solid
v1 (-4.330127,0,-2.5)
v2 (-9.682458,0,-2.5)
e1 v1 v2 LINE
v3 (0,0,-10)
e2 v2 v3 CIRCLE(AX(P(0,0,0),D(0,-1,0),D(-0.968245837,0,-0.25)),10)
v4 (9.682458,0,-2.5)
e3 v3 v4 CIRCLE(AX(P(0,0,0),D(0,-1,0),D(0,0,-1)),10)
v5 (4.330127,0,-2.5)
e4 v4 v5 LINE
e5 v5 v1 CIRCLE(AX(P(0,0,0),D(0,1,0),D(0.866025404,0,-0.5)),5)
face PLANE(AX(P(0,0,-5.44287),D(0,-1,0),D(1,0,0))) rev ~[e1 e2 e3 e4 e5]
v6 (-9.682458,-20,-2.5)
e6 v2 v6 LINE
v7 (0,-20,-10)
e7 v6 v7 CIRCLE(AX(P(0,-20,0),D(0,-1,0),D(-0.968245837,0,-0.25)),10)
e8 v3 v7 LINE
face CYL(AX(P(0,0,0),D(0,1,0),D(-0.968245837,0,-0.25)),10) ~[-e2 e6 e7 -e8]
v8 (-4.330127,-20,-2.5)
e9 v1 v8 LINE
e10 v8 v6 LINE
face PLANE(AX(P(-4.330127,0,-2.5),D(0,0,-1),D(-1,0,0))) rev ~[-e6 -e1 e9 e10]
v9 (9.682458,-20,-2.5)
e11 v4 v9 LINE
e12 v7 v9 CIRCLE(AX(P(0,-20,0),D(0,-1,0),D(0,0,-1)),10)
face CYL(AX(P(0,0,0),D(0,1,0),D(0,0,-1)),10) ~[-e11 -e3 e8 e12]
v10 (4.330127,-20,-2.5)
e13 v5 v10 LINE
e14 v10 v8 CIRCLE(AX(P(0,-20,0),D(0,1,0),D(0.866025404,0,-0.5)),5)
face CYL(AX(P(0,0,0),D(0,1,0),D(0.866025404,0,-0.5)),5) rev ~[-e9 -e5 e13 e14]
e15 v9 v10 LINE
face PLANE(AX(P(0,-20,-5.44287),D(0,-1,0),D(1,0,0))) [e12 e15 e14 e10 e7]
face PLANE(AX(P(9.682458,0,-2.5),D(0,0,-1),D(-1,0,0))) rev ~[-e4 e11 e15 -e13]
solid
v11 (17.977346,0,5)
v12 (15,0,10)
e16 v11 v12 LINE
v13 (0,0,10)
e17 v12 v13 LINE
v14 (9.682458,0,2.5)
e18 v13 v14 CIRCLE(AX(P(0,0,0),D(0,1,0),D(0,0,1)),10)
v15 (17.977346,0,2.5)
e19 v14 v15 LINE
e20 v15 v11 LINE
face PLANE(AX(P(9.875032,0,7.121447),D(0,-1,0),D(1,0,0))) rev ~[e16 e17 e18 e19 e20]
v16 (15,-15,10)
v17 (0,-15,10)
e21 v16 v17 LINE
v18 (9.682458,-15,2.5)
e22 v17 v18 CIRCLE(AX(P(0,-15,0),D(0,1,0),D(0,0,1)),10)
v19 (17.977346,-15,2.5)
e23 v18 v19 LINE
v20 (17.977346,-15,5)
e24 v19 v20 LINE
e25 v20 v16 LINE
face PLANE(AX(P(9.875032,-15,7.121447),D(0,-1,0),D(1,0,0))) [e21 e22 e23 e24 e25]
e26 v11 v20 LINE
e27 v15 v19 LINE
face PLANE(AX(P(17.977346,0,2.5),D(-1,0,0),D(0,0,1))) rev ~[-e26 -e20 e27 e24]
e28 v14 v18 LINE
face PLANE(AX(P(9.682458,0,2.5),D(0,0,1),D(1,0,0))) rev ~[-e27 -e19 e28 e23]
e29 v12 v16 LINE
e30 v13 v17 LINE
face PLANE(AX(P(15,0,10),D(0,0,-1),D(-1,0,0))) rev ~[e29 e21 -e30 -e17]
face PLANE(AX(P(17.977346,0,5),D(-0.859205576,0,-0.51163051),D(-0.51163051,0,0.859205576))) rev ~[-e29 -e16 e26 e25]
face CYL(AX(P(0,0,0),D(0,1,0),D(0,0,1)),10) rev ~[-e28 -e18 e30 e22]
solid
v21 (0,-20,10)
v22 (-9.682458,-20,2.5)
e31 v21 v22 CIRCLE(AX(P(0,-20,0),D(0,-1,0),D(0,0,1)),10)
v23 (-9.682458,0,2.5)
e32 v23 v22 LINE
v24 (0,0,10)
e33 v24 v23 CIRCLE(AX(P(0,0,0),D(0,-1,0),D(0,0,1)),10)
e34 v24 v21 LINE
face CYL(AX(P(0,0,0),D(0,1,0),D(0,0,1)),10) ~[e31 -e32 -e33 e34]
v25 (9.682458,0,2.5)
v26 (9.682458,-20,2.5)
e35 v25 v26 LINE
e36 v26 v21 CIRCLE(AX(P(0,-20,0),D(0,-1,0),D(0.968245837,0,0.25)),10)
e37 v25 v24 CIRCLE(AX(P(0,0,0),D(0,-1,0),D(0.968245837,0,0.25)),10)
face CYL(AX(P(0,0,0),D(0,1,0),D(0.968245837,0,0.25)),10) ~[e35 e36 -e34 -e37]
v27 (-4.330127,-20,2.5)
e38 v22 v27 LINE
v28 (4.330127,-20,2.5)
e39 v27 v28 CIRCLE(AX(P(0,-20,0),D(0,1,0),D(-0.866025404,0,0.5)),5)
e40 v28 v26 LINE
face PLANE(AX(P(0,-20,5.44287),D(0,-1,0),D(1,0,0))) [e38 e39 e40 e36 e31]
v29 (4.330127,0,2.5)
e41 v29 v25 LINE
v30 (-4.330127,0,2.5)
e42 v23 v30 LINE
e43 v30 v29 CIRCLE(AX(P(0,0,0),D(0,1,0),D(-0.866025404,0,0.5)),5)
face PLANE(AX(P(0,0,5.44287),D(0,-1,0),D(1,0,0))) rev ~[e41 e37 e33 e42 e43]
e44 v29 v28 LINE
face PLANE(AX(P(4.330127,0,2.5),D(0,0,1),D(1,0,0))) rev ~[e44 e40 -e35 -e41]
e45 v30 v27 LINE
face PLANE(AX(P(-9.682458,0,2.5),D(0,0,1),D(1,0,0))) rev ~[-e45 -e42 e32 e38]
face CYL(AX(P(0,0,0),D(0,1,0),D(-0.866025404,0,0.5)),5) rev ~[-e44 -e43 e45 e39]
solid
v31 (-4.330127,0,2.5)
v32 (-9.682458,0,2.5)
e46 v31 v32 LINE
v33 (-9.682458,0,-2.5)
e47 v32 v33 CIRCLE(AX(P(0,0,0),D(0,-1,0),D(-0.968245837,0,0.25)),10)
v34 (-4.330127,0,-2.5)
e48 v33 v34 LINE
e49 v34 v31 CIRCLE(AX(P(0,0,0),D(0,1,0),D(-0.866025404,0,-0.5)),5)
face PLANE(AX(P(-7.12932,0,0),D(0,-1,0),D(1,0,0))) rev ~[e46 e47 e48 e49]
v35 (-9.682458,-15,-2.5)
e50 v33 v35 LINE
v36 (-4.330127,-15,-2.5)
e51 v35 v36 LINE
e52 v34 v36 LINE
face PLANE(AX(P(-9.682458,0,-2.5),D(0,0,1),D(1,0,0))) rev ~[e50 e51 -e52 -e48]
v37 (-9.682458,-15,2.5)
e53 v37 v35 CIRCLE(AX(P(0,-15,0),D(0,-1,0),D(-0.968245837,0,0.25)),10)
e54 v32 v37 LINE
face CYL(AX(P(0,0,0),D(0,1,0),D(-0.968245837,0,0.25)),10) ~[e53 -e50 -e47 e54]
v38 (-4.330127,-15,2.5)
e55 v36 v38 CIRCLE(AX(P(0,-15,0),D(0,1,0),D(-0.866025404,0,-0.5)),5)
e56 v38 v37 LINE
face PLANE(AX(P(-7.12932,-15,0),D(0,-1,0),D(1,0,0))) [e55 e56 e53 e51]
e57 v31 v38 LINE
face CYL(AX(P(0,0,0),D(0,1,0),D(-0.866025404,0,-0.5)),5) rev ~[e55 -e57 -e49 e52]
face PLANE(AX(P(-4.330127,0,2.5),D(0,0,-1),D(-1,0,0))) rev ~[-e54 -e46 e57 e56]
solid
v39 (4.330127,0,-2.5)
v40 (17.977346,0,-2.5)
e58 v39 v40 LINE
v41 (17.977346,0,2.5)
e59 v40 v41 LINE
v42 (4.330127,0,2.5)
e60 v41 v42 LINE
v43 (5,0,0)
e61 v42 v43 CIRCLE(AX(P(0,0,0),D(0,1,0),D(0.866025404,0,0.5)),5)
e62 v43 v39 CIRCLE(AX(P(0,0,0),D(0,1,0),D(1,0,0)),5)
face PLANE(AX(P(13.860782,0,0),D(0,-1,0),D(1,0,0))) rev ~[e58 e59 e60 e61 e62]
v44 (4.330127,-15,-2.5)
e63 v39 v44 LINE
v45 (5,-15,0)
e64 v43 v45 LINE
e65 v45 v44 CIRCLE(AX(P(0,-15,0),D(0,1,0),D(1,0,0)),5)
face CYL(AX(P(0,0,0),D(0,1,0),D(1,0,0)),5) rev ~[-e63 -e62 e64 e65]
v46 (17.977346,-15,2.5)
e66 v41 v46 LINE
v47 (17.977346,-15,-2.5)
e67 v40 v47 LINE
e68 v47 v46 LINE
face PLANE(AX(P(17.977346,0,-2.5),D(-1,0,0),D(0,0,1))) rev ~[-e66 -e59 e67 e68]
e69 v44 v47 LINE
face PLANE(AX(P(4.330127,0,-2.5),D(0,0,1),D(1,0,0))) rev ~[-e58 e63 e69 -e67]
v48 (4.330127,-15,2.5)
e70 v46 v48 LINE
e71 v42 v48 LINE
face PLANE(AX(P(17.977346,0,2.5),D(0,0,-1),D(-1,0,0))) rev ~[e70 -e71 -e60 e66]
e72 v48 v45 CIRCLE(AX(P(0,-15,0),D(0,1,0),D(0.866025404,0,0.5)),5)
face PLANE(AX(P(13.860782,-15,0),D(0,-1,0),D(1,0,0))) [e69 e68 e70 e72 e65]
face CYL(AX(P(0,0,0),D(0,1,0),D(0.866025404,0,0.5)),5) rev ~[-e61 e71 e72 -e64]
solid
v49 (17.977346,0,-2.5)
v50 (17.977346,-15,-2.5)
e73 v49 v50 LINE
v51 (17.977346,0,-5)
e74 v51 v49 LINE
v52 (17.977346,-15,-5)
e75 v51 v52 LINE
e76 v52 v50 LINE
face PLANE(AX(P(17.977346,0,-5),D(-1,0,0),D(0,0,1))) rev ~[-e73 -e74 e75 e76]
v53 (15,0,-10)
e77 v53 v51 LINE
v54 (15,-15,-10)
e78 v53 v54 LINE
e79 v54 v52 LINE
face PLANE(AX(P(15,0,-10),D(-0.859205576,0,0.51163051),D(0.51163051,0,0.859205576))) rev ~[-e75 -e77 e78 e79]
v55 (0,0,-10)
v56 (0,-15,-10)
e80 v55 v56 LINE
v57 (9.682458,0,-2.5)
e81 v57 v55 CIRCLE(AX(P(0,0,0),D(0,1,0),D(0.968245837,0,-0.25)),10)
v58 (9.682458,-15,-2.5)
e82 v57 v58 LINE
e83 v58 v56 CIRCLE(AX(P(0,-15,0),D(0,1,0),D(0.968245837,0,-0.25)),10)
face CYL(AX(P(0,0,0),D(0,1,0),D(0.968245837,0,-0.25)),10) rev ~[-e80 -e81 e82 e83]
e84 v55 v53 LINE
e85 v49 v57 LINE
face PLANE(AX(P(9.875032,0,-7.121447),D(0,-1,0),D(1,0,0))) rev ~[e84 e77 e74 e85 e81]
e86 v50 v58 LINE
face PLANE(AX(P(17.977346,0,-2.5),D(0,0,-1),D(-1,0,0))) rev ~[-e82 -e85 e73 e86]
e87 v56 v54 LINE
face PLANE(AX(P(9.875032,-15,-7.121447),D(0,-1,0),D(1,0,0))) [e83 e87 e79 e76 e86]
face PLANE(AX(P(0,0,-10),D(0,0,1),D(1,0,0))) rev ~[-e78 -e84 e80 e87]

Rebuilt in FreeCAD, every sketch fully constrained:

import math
import FreeCAD as App
import Part
import Sketcher
Q = App.Units.Quantity

doc = App.newDocument("Part")
params = doc.addObject("Spreadsheet::Sheet", "Params")
for row, (alias, value) in enumerate([
    ("sketch1_radius", "10 mm"),
    ("sketch1_radius2", "5 mm"),
    ("pad1_length", "20 mm"),
    ("sketch2_radius", "10 mm"),
    ("sketch2_radius2", "5 mm"),
    ("pad2_length", "20 mm"),
    ("sketch3_radius", "10 mm"),
    ("sketch3_width", "15 mm"),
    ("sketch3_height", "2.5 mm"),
    ("pad3_length", "15 mm"),
    ("sketch4_radius", "10 mm"),
    ("sketch4_width", "15 mm"),
    ("sketch4_height", "2.5 mm"),
    ("pad4_length", "15 mm"),
    ("sketch5_radius", "5 mm"),
    ("sketch5_height", "5 mm"),
    ("pad5_length", "15 mm"),
    ("sketch6_radius", "10 mm"),
    ("sketch6_radius2", "5 mm"),
    ("pad6_length", "15 mm"),
], start=1):
    params.set(f"A{row}", alias)
    params.set(f"B{row}", "=" + value)
    params.setAlias(f"B{row}", alias)

body = doc.addObject("PartDesign::Body", "Body")

# Sketch on XZ plane
sketch1 = doc.addObject("Sketcher::SketchObject", "Sketch")
body.addObject(sketch1)
sketch1.AttachmentSupport = (doc.XZ_Plane, [""])
sketch1.MapMode = "FlatFace"
sketch1.addGeometry(Part.ArcOfCircle(Part.Circle(App.Vector(0, 0, 0), App.Vector(0, 0, 1), 10), math.radians(14), math.radians(90)), False)
sketch1.addGeometry(Part.ArcOfCircle(Part.Circle(App.Vector(0, 0, 0), App.Vector(0, 0, 1), 10), math.radians(90), math.radians(166)), False)
sketch1.addGeometry(Part.LineSegment(App.Vector(-10, 2, 0), App.Vector(-4, 2, 0)), False)
sketch1.addGeometry(Part.ArcOfCircle(Part.Circle(App.Vector(0, 0, 0), App.Vector(0, 0, 1), 5), math.radians(30), math.radians(150)), False)
sketch1.addGeometry(Part.LineSegment(App.Vector(4, 2, 0), App.Vector(10, 2, 0)), False)
sketch1.addConstraint(Sketcher.Constraint("Tangent", 0, 2, 1, 1))
sketch1.addConstraint(Sketcher.Constraint("Coincident", 1, 2, 2, 1))
sketch1.addConstraint(Sketcher.Constraint("Coincident", 2, 2, 3, 2))
sketch1.addConstraint(Sketcher.Constraint("Coincident", 3, 1, 4, 1))
sketch1.addConstraint(Sketcher.Constraint("Coincident", 4, 2, 0, 1))
sketch1.addConstraint(Sketcher.Constraint("Horizontal", 2))
sketch1.addConstraint(Sketcher.Constraint("Horizontal", 4))
sketch1.addConstraint(Sketcher.Constraint("Coincident", 0, 3, -1, 1))
sketch1.addConstraint(Sketcher.Constraint("Coincident", 3, 3, -1, 1))
sketch1.addConstraint(Sketcher.Constraint("Equal", 0, 1))
sketch1.addConstraint(Sketcher.Constraint("PointOnObject", 0, 2, -2))
sketch1.addConstraint(Sketcher.Constraint("Horizontal", 2, 2, 3, 1))
sketch1.addConstraint(Sketcher.Constraint("Radius", 0, Q("10 mm")))
sketch1.addConstraint(Sketcher.Constraint("Radius", 3, Q("5 mm")))
sketch1.addConstraint(Sketcher.Constraint("DistanceY", -1, 1, 1, 2, Q("2.5 mm")))
sketch1.setExpression("Constraints[12]", "Params.sketch1_radius")
sketch1.setExpression("Constraints[13]", "Params.sketch1_radius2")
pad1 = doc.addObject("PartDesign::Pad", "Pad")
body.addObject(pad1)
pad1.Profile = sketch1
pad1.setExpression("Length", "Params.pad1_length")
body2 = doc.addObject("PartDesign::Body", "Body001")

# Sketch on XZ plane
sketch2 = doc.addObject("Sketcher::SketchObject", "Sketch001")
body2.addObject(sketch2)
sketch2.AttachmentSupport = (doc.getObject("XZ_Plane001"), [""])
sketch2.MapMode = "FlatFace"
sketch2.addGeometry(Part.LineSegment(App.Vector(-4, -2, 0), App.Vector(-10, -2, 0)), False)
sketch2.addGeometry(Part.ArcOfCircle(Part.Circle(App.Vector(0, 0, 0), App.Vector(0, 0, 1), 10), math.radians(-166), math.radians(-90)), False)
sketch2.addGeometry(Part.ArcOfCircle(Part.Circle(App.Vector(0, 0, 0), App.Vector(0, 0, 1), 10), math.radians(-90), math.radians(-14)), False)
sketch2.addGeometry(Part.LineSegment(App.Vector(10, -2, 0), App.Vector(4, -2, 0)), False)
sketch2.addGeometry(Part.ArcOfCircle(Part.Circle(App.Vector(0, 0, 0), App.Vector(0, 0, 1), 5), math.radians(-150), math.radians(-30)), False)
sketch2.addConstraint(Sketcher.Constraint("Coincident", 0, 2, 1, 1))
sketch2.addConstraint(Sketcher.Constraint("Tangent", 1, 2, 2, 1))
sketch2.addConstraint(Sketcher.Constraint("Coincident", 2, 2, 3, 1))
sketch2.addConstraint(Sketcher.Constraint("Coincident", 3, 2, 4, 2))
sketch2.addConstraint(Sketcher.Constraint("Coincident", 4, 1, 0, 1))
sketch2.addConstraint(Sketcher.Constraint("Horizontal", 0))
sketch2.addConstraint(Sketcher.Constraint("Horizontal", 3))
sketch2.addConstraint(Sketcher.Constraint("Coincident", 1, 3, -1, 1))
sketch2.addConstraint(Sketcher.Constraint("Coincident", 4, 3, -1, 1))
sketch2.addConstraint(Sketcher.Constraint("Equal", 1, 2))
sketch2.addConstraint(Sketcher.Constraint("PointOnObject", 1, 2, -2))
sketch2.addConstraint(Sketcher.Constraint("Horizontal", 0, 2, 2, 2))
sketch2.addConstraint(Sketcher.Constraint("Radius", 1, Q("10 mm")))
sketch2.addConstraint(Sketcher.Constraint("Radius", 4, Q("5 mm")))
sketch2.addConstraint(Sketcher.Constraint("DistanceY", 0, 2, -1, 1, Q("2.5 mm")))
sketch2.setExpression("Constraints[12]", "Params.sketch2_radius")
sketch2.setExpression("Constraints[13]", "Params.sketch2_radius2")
pad2 = doc.addObject("PartDesign::Pad", "Pad001")
body2.addObject(pad2)
pad2.Profile = sketch2
pad2.setExpression("Length", "Params.pad2_length")
body3 = doc.addObject("PartDesign::Body", "Body002")

# Sketch on XZ plane
sketch3 = doc.addObject("Sketcher::SketchObject", "Sketch002")
body3.addObject(sketch3)
sketch3.AttachmentSupport = (doc.getObject("XZ_Plane002"), [""])
sketch3.MapMode = "FlatFace"
sketch3.addGeometry(Part.LineSegment(App.Vector(15, 10, 0), App.Vector(0, 10, 0)), False)
sketch3.addGeometry(Part.ArcOfCircle(Part.Circle(App.Vector(0, 0, 0), App.Vector(0, 0, 1), 10), math.radians(14), math.radians(90)), False)
sketch3.addGeometry(Part.LineSegment(App.Vector(9.7, 2.5, 0), App.Vector(18, 2.5, 0)), False)
sketch3.addGeometry(Part.LineSegment(App.Vector(18, 2.5, 0), App.Vector(18, 5, 0)), False)
sketch3.addGeometry(Part.LineSegment(App.Vector(18, 5, 0), App.Vector(15, 10, 0)), False)
sketch3.addConstraint(Sketcher.Constraint("Tangent", 0, 2, 1, 2))
sketch3.addConstraint(Sketcher.Constraint("Coincident", 1, 1, 2, 1))
sketch3.addConstraint(Sketcher.Constraint("Coincident", 2, 2, 3, 1))
sketch3.addConstraint(Sketcher.Constraint("Coincident", 3, 2, 4, 1))
sketch3.addConstraint(Sketcher.Constraint("Coincident", 4, 2, 0, 1))
sketch3.addConstraint(Sketcher.Constraint("Horizontal", 0))
sketch3.addConstraint(Sketcher.Constraint("Horizontal", 2))
sketch3.addConstraint(Sketcher.Constraint("Vertical", 3))
sketch3.addConstraint(Sketcher.Constraint("Coincident", 1, 3, -1, 1))
sketch3.addConstraint(Sketcher.Constraint("Radius", 1, Q("10 mm")))
sketch3.addConstraint(Sketcher.Constraint("DistanceX", 0, 2, 0, 1, Q("15 mm")))
sketch3.addConstraint(Sketcher.Constraint("DistanceY", 3, 1, 3, 2, Q("2.5 mm")))
sketch3.addConstraint(Sketcher.Constraint("DistanceY", -1, 1, 3, 2, Q("5 mm")))
sketch3.addConstraint(Sketcher.Constraint("Distance", 4, Q("5.819329 mm")))
sketch3.setExpression("Constraints[9]", "Params.sketch3_radius")
sketch3.setExpression("Constraints[10]", "Params.sketch3_width")
sketch3.setExpression("Constraints[11]", "Params.sketch3_height")
pad3 = doc.addObject("PartDesign::Pad", "Pad002")
body3.addObject(pad3)
pad3.Profile = sketch3
pad3.setExpression("Length", "Params.pad3_length")
body4 = doc.addObject("PartDesign::Body", "Body003")

# Sketch on XZ plane
sketch4 = doc.addObject("Sketcher::SketchObject", "Sketch003")
body4.addObject(sketch4)
sketch4.AttachmentSupport = (doc.getObject("XZ_Plane003"), [""])
sketch4.MapMode = "FlatFace"
sketch4.addGeometry(Part.ArcOfCircle(Part.Circle(App.Vector(0, 0, 0), App.Vector(0, 0, 1), 10), math.radians(-90), math.radians(-14)), False)
sketch4.addGeometry(Part.LineSegment(App.Vector(0, -10, 0), App.Vector(15, -10, 0)), False)
sketch4.addGeometry(Part.LineSegment(App.Vector(15, -10, 0), App.Vector(18, -5, 0)), False)
sketch4.addGeometry(Part.LineSegment(App.Vector(18, -5, 0), App.Vector(18, -2.5, 0)), False)
sketch4.addGeometry(Part.LineSegment(App.Vector(18, -2.5, 0), App.Vector(9.7, -2.5, 0)), False)
sketch4.addConstraint(Sketcher.Constraint("Tangent", 0, 1, 1, 1))
sketch4.addConstraint(Sketcher.Constraint("Coincident", 1, 2, 2, 1))
sketch4.addConstraint(Sketcher.Constraint("Coincident", 2, 2, 3, 1))
sketch4.addConstraint(Sketcher.Constraint("Coincident", 3, 2, 4, 1))
sketch4.addConstraint(Sketcher.Constraint("Coincident", 4, 2, 0, 2))
sketch4.addConstraint(Sketcher.Constraint("Horizontal", 1))
sketch4.addConstraint(Sketcher.Constraint("Vertical", 3))
sketch4.addConstraint(Sketcher.Constraint("Horizontal", 4))
sketch4.addConstraint(Sketcher.Constraint("Coincident", 0, 3, -1, 1))
sketch4.addConstraint(Sketcher.Constraint("Radius", 0, Q("10 mm")))
sketch4.addConstraint(Sketcher.Constraint("DistanceX", 1, 1, 1, 2, Q("15 mm")))
sketch4.addConstraint(Sketcher.Constraint("DistanceY", 3, 1, 3, 2, Q("2.5 mm")))
sketch4.addConstraint(Sketcher.Constraint("DistanceY", 2, 2, -1, 1, Q("5 mm")))
sketch4.addConstraint(Sketcher.Constraint("Distance", 2, Q("5.819329 mm")))
sketch4.setExpression("Constraints[9]", "Params.sketch4_radius")
sketch4.setExpression("Constraints[10]", "Params.sketch4_width")
sketch4.setExpression("Constraints[11]", "Params.sketch4_height")
pad4 = doc.addObject("PartDesign::Pad", "Pad003")
body4.addObject(pad4)
pad4.Profile = sketch4
pad4.setExpression("Length", "Params.pad4_length")
body5 = doc.addObject("PartDesign::Body", "Body004")

# Sketch on XZ plane
sketch5 = doc.addObject("Sketcher::SketchObject", "Sketch004")
body5.addObject(sketch5)
sketch5.AttachmentSupport = (doc.getObject("XZ_Plane004"), [""])
sketch5.MapMode = "FlatFace"
sketch5.addGeometry(Part.LineSegment(App.Vector(18, 2.5, 0), App.Vector(4.3, 2.5, 0)), False)
sketch5.addGeometry(Part.ArcOfCircle(Part.Circle(App.Vector(0, 0, 0), App.Vector(0, 0, 1), 5), math.radians(0), math.radians(30)), False)
sketch5.addGeometry(Part.ArcOfCircle(Part.Circle(App.Vector(0, 0, 0), App.Vector(0, 0, 1), 5), math.radians(-30), math.radians(0)), False)
sketch5.addGeometry(Part.LineSegment(App.Vector(4.3, -2.5, 0), App.Vector(18, -2.5, 0)), False)
sketch5.addGeometry(Part.LineSegment(App.Vector(18, -2.5, 0), App.Vector(18, 2.5, 0)), False)
sketch5.addConstraint(Sketcher.Constraint("Coincident", 0, 2, 1, 2))
sketch5.addConstraint(Sketcher.Constraint("Tangent", 1, 1, 2, 2))
sketch5.addConstraint(Sketcher.Constraint("Coincident", 2, 1, 3, 1))
sketch5.addConstraint(Sketcher.Constraint("Coincident", 3, 2, 4, 1))
sketch5.addConstraint(Sketcher.Constraint("Coincident", 4, 2, 0, 1))
sketch5.addConstraint(Sketcher.Constraint("Horizontal", 0))
sketch5.addConstraint(Sketcher.Constraint("Horizontal", 3))
sketch5.addConstraint(Sketcher.Constraint("Vertical", 4))
sketch5.addConstraint(Sketcher.Constraint("Coincident", 1, 3, -1, 1))
sketch5.addConstraint(Sketcher.Constraint("Equal", 1, 2))
sketch5.addConstraint(Sketcher.Constraint("PointOnObject", 1, 1, -1))
sketch5.addConstraint(Sketcher.Constraint("Vertical", 0, 2, 2, 1))
sketch5.addConstraint(Sketcher.Constraint("Radius", 1, Q("5 mm")))
sketch5.addConstraint(Sketcher.Constraint("DistanceY", 4, 1, 4, 2, Q("5 mm")))
sketch5.addConstraint(Sketcher.Constraint("DistanceX", 0, 2, 0, 1, Q("13.647219 mm")))
sketch5.setExpression("Constraints[12]", "Params.sketch5_radius")
sketch5.setExpression("Constraints[13]", "Params.sketch5_height")
pad5 = doc.addObject("PartDesign::Pad", "Pad004")
body5.addObject(pad5)
pad5.Profile = sketch5
pad5.setExpression("Length", "Params.pad5_length")
body6 = doc.addObject("PartDesign::Body", "Body005")

# Sketch on XZ plane
sketch6 = doc.addObject("Sketcher::SketchObject", "Sketch005")
body6.addObject(sketch6)
sketch6.AttachmentSupport = (doc.getObject("XZ_Plane005"), [""])
sketch6.MapMode = "FlatFace"
sketch6.addGeometry(Part.LineSegment(App.Vector(-4, 2, 0), App.Vector(-10, 2, 0)), False)
sketch6.addGeometry(Part.ArcOfCircle(Part.Circle(App.Vector(0, 0, 0), App.Vector(0, 0, 1), 10), math.radians(166), math.radians(194)), False)
sketch6.addGeometry(Part.LineSegment(App.Vector(-10, -2, 0), App.Vector(-4, -2, 0)), False)
sketch6.addGeometry(Part.ArcOfCircle(Part.Circle(App.Vector(0, 0, 0), App.Vector(0, 0, 1), 5), math.radians(150), math.radians(210)), False)
sketch6.addConstraint(Sketcher.Constraint("Coincident", 0, 2, 1, 1))
sketch6.addConstraint(Sketcher.Constraint("Coincident", 1, 2, 2, 1))
sketch6.addConstraint(Sketcher.Constraint("Coincident", 2, 2, 3, 2))
sketch6.addConstraint(Sketcher.Constraint("Coincident", 3, 1, 0, 1))
sketch6.addConstraint(Sketcher.Constraint("Horizontal", 0))
sketch6.addConstraint(Sketcher.Constraint("Horizontal", 2))
sketch6.addConstraint(Sketcher.Constraint("Coincident", 1, 3, -1, 1))
sketch6.addConstraint(Sketcher.Constraint("Coincident", 3, 3, -1, 1))
sketch6.addConstraint(Sketcher.Constraint("Vertical", 0, 2, 1, 2))
sketch6.addConstraint(Sketcher.Constraint("Radius", 1, Q("10 mm")))
sketch6.addConstraint(Sketcher.Constraint("Radius", 3, Q("5 mm")))
sketch6.addConstraint(Sketcher.Constraint("DistanceY", 1, 2, 0, 2, Q("5 mm")))
sketch6.setExpression("Constraints[9]", "Params.sketch6_radius")
sketch6.setExpression("Constraints[10]", "Params.sketch6_radius2")
pad6 = doc.addObject("PartDesign::Pad", "Pad005")
body6.addObject(pad6)
pad6.Profile = sketch6
pad6.setExpression("Length", "Params.pad6_length")

doc.recompute()
